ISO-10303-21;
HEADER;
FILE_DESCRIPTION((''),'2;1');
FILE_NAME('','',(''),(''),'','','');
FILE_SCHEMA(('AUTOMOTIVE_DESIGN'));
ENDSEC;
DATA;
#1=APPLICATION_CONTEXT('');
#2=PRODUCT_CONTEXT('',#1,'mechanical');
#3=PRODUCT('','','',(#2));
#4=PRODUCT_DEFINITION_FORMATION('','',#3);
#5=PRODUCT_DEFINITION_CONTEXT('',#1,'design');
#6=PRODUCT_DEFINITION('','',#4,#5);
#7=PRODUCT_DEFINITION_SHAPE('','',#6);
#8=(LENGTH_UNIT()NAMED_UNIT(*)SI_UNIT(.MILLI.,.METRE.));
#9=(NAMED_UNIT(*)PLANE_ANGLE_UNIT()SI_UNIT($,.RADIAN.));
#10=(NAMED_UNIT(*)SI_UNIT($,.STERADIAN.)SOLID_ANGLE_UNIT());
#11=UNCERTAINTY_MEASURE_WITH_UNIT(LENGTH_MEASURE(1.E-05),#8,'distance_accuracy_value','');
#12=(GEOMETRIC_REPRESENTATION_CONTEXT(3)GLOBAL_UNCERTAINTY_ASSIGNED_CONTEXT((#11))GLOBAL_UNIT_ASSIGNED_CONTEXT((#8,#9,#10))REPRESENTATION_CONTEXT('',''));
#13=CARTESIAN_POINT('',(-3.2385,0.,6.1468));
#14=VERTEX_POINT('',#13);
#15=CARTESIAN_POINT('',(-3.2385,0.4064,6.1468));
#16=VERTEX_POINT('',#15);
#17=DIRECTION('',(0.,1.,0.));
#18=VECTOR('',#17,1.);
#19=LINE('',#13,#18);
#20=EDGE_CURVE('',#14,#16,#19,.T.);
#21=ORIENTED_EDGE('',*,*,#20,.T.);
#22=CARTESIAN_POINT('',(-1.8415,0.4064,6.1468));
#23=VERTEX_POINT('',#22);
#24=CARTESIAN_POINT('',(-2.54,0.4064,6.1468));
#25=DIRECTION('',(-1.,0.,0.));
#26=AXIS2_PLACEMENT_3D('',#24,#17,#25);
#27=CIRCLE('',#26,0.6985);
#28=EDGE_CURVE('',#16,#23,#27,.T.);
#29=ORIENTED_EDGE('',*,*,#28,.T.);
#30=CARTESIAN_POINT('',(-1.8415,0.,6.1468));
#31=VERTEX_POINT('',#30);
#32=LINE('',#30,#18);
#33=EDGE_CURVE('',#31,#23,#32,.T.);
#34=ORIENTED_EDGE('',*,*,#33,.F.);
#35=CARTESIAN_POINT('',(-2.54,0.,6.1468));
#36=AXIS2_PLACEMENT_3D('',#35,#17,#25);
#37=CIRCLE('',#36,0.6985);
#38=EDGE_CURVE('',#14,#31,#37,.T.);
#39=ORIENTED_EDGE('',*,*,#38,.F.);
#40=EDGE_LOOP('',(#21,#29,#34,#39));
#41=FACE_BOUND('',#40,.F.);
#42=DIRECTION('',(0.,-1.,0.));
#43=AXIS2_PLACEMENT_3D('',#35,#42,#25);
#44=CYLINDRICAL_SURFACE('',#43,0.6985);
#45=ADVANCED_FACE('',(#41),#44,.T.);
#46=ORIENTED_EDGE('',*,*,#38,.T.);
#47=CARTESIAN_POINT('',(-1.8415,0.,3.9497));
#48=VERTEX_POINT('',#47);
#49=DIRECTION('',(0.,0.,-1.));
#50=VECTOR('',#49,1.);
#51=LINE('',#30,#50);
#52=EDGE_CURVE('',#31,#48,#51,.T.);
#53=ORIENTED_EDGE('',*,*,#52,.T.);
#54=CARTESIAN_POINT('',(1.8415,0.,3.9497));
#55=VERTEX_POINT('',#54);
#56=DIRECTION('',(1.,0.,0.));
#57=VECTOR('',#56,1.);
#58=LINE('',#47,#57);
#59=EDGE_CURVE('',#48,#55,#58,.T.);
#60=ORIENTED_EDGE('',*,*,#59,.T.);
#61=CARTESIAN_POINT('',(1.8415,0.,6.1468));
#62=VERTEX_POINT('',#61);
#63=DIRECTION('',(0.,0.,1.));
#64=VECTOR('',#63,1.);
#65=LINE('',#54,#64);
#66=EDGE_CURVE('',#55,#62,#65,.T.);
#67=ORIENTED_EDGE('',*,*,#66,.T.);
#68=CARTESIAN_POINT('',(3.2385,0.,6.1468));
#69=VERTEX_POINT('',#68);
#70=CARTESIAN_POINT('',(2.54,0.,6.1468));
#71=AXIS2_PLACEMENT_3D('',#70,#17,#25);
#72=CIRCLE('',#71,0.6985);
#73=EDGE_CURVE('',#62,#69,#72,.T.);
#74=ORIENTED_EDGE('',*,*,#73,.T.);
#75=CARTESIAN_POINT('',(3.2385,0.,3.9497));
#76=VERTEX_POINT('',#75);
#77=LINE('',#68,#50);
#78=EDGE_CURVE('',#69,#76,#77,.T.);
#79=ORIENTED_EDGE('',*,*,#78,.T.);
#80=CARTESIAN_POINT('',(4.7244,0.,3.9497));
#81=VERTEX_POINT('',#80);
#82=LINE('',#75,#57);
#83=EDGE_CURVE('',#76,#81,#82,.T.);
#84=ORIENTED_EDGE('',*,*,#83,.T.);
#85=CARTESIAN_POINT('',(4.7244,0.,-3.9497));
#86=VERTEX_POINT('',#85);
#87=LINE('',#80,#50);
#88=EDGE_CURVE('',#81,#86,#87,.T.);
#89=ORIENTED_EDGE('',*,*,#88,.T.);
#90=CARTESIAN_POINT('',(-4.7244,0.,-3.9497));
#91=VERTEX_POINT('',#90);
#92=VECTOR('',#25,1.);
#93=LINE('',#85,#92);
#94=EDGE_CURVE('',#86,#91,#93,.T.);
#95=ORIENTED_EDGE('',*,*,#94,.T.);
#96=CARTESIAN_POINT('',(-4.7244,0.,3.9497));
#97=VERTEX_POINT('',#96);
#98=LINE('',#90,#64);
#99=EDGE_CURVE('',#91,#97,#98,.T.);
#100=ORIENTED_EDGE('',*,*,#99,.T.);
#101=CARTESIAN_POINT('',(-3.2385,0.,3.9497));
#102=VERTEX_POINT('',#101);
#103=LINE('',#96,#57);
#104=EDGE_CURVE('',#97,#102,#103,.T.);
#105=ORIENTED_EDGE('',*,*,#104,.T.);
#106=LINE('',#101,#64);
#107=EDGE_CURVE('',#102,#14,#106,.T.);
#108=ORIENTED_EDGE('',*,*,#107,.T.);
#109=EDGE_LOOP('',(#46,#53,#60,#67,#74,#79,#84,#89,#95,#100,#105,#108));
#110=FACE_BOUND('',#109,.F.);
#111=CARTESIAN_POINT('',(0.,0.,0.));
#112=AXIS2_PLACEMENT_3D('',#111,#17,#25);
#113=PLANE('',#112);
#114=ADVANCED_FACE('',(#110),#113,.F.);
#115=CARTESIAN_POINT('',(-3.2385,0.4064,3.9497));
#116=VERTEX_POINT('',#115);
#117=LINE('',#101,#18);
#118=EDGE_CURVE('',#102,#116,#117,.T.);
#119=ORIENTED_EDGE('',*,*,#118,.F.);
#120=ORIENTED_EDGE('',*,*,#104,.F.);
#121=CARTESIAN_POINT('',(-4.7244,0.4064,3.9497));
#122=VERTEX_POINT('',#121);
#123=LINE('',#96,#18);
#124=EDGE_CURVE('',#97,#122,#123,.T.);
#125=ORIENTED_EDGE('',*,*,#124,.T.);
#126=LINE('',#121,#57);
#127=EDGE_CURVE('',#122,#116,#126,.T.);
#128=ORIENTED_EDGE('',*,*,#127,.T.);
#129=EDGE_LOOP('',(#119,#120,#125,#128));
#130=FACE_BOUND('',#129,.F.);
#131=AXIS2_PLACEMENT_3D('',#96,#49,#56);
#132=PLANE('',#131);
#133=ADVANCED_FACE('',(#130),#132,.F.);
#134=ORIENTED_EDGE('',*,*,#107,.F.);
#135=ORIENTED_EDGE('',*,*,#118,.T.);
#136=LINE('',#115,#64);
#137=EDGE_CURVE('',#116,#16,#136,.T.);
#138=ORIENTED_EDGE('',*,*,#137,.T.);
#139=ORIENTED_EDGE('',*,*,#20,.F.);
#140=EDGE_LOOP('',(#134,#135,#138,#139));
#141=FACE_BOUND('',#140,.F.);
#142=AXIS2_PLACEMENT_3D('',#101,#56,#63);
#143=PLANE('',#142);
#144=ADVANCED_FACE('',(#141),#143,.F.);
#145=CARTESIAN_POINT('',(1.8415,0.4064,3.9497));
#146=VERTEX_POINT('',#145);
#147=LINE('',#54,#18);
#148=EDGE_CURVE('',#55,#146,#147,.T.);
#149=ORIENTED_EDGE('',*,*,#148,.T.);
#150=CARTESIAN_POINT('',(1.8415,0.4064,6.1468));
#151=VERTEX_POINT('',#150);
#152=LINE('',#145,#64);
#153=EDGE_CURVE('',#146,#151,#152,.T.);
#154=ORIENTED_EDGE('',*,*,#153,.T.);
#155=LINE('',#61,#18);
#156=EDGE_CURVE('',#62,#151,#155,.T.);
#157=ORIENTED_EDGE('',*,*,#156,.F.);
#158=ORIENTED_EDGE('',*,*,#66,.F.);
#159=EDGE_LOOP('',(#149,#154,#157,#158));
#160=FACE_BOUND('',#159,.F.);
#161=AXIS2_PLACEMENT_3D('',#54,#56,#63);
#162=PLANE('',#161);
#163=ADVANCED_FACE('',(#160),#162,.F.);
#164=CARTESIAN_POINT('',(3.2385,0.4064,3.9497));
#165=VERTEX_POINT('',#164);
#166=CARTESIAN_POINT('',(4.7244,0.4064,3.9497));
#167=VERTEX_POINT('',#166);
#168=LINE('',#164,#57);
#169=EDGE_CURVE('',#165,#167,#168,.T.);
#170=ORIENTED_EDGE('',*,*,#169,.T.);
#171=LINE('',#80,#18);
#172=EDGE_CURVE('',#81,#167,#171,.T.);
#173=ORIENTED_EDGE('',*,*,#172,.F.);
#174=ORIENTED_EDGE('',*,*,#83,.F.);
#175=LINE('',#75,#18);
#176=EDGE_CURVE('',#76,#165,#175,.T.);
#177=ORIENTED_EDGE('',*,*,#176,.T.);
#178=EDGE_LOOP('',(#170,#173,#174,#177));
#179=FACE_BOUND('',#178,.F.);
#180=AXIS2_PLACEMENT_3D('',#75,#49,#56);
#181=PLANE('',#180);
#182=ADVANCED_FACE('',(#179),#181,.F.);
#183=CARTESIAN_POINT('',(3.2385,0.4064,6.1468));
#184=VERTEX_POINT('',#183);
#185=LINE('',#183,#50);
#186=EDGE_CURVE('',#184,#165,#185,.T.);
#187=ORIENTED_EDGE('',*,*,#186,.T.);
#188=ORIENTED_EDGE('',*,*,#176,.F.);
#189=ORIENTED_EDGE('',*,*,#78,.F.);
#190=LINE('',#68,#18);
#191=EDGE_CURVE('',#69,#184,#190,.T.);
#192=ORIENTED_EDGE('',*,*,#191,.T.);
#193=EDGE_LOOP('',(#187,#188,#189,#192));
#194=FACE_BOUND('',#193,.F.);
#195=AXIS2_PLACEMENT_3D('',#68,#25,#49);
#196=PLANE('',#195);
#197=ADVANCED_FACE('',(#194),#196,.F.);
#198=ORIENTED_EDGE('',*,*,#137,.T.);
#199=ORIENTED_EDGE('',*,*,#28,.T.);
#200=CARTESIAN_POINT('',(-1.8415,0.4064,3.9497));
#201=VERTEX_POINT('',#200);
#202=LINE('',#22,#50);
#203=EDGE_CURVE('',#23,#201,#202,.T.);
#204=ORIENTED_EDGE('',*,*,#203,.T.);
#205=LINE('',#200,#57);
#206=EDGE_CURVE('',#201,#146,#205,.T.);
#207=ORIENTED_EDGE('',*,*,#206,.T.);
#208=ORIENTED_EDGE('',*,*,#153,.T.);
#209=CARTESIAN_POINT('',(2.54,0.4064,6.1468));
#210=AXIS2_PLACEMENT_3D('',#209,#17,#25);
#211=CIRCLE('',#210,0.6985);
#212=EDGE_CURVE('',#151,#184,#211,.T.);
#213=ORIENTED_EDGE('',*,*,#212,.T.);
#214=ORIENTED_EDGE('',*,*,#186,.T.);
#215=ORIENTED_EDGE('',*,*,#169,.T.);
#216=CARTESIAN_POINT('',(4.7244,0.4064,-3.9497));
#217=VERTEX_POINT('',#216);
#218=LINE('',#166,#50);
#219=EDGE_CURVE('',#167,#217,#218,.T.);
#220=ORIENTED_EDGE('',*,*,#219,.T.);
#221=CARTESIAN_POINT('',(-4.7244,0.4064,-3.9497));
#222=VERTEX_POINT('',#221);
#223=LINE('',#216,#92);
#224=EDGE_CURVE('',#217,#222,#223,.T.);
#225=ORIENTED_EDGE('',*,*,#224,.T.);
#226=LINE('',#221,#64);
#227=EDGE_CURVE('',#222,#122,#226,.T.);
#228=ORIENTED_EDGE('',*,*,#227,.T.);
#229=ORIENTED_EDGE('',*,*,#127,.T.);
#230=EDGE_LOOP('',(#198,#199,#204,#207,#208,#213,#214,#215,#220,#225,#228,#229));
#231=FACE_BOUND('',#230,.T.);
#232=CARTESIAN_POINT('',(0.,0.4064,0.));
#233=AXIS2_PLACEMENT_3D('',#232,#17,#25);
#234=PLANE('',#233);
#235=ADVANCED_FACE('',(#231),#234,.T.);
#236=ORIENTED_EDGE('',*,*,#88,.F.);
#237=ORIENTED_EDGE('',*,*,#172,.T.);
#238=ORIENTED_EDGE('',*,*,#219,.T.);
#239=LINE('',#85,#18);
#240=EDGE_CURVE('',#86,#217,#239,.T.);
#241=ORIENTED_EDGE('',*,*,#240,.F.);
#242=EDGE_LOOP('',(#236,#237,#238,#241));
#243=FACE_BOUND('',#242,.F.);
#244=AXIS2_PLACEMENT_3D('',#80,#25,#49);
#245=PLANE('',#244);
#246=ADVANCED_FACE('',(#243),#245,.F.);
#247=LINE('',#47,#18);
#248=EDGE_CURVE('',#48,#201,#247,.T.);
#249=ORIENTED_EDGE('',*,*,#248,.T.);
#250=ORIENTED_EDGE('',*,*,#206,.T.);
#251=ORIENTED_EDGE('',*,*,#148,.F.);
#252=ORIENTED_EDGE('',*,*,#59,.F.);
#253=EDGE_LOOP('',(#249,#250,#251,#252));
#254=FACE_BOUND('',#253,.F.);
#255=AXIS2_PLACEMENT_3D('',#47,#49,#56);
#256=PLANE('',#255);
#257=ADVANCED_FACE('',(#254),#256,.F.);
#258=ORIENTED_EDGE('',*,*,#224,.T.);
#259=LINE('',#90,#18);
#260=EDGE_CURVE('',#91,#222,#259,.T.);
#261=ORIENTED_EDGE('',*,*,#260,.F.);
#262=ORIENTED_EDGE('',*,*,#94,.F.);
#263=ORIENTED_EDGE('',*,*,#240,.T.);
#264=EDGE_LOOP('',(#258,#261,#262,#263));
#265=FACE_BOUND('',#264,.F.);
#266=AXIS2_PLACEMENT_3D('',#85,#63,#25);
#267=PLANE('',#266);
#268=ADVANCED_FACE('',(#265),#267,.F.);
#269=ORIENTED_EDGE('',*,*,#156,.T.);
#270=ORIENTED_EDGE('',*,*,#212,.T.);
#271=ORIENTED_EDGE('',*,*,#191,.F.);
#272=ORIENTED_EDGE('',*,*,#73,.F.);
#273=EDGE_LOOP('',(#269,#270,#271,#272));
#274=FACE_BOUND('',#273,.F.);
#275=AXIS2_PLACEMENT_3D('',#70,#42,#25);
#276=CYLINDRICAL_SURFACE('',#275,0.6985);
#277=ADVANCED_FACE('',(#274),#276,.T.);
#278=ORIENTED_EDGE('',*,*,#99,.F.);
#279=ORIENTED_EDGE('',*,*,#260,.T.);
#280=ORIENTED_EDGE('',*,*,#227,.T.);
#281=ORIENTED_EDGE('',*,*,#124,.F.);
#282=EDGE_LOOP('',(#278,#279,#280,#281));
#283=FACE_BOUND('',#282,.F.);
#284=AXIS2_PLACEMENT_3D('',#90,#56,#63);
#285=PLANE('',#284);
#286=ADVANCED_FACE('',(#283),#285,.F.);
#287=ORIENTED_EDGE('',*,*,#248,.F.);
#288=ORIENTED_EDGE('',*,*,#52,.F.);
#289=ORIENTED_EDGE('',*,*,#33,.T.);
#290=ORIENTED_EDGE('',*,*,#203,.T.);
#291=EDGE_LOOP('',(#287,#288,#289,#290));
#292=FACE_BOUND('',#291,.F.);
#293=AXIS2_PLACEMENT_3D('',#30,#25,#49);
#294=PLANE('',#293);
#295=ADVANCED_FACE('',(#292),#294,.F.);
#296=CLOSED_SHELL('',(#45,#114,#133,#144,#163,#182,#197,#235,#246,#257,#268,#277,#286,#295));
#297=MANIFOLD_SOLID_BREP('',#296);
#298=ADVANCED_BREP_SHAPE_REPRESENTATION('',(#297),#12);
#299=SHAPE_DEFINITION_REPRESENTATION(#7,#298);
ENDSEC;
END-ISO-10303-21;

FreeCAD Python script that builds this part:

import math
import FreeCAD as App
import Part
import Sketcher
Q = App.Units.Quantity

doc = App.newDocument("Part")
body = doc.addObject("PartDesign::Body", "Body")

# Sketch on XZ plane
sketch1 = doc.addObject("Sketcher::SketchObject", "Sketch")
body.addObject(sketch1)
sketch1.AttachmentSupport = (doc.XZ_Plane, [""])
sketch1.MapMode = "FlatFace"
sketch1.addGeometry(Part.LineSegment(App.Vector(-4.7, -3.9, 0), App.Vector(-4.7, 3.9, 0)), False)
sketch1.addGeometry(Part.LineSegment(App.Vector(-4.7, 3.9, 0), App.Vector(-3.2, 3.9, 0)), False)
sketch1.addGeometry(Part.LineSegment(App.Vector(-3.2, 3.9, 0), App.Vector(-3.2, 6.1, 0)), False)
sketch1.addGeometry(Part.ArcOfCircle(Part.Circle(App.Vector(-2.5, 6.1, 0), App.Vector(0, 0, 1), 0.7), math.radians(0), math.radians(180)), False)
sketch1.addGeometry(Part.LineSegment(App.Vector(-1.8, 6.1, 0), App.Vector(-1.8, 3.9, 0)), False)
sketch1.addGeometry(Part.LineSegment(App.Vector(-1.8, 3.9, 0), App.Vector(1.8, 3.9, 0)), False)
sketch1.addGeometry(Part.LineSegment(App.Vector(1.8, 3.9, 0), App.Vector(1.8, 6.1, 0)), False)
sketch1.addGeometry(Part.ArcOfCircle(Part.Circle(App.Vector(2.5, 6.1, 0), App.Vector(0, 0, 1), 0.7), math.radians(0), math.radians(180)), False)
sketch1.addGeometry(Part.LineSegment(App.Vector(3.2, 6.1, 0), App.Vector(3.2, 3.9, 0)), False)
sketch1.addGeometry(Part.LineSegment(App.Vector(3.2, 3.9, 0), App.Vector(4.7, 3.9, 0)), False)
sketch1.addGeometry(Part.LineSegment(App.Vector(4.7, 3.9, 0), App.Vector(4.7, -3.9, 0)), False)
sketch1.addGeometry(Part.LineSegment(App.Vector(4.7, -3.9, 0), App.Vector(-4.7, -3.9, 0)), False)
sketch1.addConstraint(Sketcher.Constraint("Coincident", 0, 2, 1, 1))
sketch1.addConstraint(Sketcher.Constraint("Coincident", 1, 2, 2, 1))
sketch1.addConstraint(Sketcher.Constraint("Tangent", 2, 2, 3, 2))
sketch1.addConstraint(Sketcher.Constraint("Tangent", 3, 1, 4, 1))
sketch1.addConstraint(Sketcher.Constraint("Coincident", 4, 2, 5, 1))
sketch1.addConstraint(Sketcher.Constraint("Coincident", 5, 2, 6, 1))
sketch1.addConstraint(Sketcher.Constraint("Tangent", 6, 2, 7, 2))
sketch1.addConstraint(Sketcher.Constraint("Tangent", 7, 1, 8, 1))
sketch1.addConstraint(Sketcher.Constraint("Coincident", 8, 2, 9, 1))
sketch1.addConstraint(Sketcher.Constraint("Coincident", 9, 2, 10, 1))
sketch1.addConstraint(Sketcher.Constraint("Coincident", 10, 2, 11, 1))
sketch1.addConstraint(Sketcher.Constraint("Coincident", 11, 2, 0, 1))
sketch1.addConstraint(Sketcher.Constraint("Vertical", 0))
sketch1.addConstraint(Sketcher.Constraint("Horizontal", 1))
sketch1.addConstraint(Sketcher.Constraint("Vertical", 2))
sketch1.addConstraint(Sketcher.Constraint("Vertical", 4))
sketch1.addConstraint(Sketcher.Constraint("Horizontal", 5))
sketch1.addConstraint(Sketcher.Constraint("Vertical", 6))
sketch1.addConstraint(Sketcher.Constraint("Vertical", 8))
sketch1.addConstraint(Sketcher.Constraint("Horizontal", 9))
sketch1.addConstraint(Sketcher.Constraint("Vertical", 10))
sketch1.addConstraint(Sketcher.Constraint("Horizontal", 11))
sketch1.addConstraint(Sketcher.Constraint("Equal", 3, 7))
sketch1.addConstraint(Sketcher.Constraint("Symmetric", 0, 2, 10, 2, -1, 1))
sketch1.addConstraint(Sketcher.Constraint("Symmetric", 3, 3, 7, 3, -2))
sketch1.addConstraint(Sketcher.Constraint("Horizontal", 1, 2, 4, 2))
sketch1.addConstraint(Sketcher.Constraint("Horizontal", 5, 2, 8, 2))
sketch1.addConstraint(Sketcher.Constraint("DistanceX", 3, 3, -1, 1, Q("0.1 in")))
sketch1.addConstraint(Sketcher.Constraint("Radius", 3, Q("0.0275 in")))
sketch1.addConstraint(Sketcher.Constraint("DistanceX", 11, 2, 11, 1, Q("0.372 in")))
sketch1.addConstraint(Sketcher.Constraint("DistanceY", 0, 1, 0, 2, Q("0.311 in")))
sketch1.addConstraint(Sketcher.Constraint("DistanceY", 2, 1, 2, 2, Q("0.0865 in")))
pad1 = doc.addObject("PartDesign::Pad", "Pad")
body.addObject(pad1)
pad1.Profile = sketch1
pad1.Length = Q("0.016 in")
pad1.Reversed = True

doc.recompute()
